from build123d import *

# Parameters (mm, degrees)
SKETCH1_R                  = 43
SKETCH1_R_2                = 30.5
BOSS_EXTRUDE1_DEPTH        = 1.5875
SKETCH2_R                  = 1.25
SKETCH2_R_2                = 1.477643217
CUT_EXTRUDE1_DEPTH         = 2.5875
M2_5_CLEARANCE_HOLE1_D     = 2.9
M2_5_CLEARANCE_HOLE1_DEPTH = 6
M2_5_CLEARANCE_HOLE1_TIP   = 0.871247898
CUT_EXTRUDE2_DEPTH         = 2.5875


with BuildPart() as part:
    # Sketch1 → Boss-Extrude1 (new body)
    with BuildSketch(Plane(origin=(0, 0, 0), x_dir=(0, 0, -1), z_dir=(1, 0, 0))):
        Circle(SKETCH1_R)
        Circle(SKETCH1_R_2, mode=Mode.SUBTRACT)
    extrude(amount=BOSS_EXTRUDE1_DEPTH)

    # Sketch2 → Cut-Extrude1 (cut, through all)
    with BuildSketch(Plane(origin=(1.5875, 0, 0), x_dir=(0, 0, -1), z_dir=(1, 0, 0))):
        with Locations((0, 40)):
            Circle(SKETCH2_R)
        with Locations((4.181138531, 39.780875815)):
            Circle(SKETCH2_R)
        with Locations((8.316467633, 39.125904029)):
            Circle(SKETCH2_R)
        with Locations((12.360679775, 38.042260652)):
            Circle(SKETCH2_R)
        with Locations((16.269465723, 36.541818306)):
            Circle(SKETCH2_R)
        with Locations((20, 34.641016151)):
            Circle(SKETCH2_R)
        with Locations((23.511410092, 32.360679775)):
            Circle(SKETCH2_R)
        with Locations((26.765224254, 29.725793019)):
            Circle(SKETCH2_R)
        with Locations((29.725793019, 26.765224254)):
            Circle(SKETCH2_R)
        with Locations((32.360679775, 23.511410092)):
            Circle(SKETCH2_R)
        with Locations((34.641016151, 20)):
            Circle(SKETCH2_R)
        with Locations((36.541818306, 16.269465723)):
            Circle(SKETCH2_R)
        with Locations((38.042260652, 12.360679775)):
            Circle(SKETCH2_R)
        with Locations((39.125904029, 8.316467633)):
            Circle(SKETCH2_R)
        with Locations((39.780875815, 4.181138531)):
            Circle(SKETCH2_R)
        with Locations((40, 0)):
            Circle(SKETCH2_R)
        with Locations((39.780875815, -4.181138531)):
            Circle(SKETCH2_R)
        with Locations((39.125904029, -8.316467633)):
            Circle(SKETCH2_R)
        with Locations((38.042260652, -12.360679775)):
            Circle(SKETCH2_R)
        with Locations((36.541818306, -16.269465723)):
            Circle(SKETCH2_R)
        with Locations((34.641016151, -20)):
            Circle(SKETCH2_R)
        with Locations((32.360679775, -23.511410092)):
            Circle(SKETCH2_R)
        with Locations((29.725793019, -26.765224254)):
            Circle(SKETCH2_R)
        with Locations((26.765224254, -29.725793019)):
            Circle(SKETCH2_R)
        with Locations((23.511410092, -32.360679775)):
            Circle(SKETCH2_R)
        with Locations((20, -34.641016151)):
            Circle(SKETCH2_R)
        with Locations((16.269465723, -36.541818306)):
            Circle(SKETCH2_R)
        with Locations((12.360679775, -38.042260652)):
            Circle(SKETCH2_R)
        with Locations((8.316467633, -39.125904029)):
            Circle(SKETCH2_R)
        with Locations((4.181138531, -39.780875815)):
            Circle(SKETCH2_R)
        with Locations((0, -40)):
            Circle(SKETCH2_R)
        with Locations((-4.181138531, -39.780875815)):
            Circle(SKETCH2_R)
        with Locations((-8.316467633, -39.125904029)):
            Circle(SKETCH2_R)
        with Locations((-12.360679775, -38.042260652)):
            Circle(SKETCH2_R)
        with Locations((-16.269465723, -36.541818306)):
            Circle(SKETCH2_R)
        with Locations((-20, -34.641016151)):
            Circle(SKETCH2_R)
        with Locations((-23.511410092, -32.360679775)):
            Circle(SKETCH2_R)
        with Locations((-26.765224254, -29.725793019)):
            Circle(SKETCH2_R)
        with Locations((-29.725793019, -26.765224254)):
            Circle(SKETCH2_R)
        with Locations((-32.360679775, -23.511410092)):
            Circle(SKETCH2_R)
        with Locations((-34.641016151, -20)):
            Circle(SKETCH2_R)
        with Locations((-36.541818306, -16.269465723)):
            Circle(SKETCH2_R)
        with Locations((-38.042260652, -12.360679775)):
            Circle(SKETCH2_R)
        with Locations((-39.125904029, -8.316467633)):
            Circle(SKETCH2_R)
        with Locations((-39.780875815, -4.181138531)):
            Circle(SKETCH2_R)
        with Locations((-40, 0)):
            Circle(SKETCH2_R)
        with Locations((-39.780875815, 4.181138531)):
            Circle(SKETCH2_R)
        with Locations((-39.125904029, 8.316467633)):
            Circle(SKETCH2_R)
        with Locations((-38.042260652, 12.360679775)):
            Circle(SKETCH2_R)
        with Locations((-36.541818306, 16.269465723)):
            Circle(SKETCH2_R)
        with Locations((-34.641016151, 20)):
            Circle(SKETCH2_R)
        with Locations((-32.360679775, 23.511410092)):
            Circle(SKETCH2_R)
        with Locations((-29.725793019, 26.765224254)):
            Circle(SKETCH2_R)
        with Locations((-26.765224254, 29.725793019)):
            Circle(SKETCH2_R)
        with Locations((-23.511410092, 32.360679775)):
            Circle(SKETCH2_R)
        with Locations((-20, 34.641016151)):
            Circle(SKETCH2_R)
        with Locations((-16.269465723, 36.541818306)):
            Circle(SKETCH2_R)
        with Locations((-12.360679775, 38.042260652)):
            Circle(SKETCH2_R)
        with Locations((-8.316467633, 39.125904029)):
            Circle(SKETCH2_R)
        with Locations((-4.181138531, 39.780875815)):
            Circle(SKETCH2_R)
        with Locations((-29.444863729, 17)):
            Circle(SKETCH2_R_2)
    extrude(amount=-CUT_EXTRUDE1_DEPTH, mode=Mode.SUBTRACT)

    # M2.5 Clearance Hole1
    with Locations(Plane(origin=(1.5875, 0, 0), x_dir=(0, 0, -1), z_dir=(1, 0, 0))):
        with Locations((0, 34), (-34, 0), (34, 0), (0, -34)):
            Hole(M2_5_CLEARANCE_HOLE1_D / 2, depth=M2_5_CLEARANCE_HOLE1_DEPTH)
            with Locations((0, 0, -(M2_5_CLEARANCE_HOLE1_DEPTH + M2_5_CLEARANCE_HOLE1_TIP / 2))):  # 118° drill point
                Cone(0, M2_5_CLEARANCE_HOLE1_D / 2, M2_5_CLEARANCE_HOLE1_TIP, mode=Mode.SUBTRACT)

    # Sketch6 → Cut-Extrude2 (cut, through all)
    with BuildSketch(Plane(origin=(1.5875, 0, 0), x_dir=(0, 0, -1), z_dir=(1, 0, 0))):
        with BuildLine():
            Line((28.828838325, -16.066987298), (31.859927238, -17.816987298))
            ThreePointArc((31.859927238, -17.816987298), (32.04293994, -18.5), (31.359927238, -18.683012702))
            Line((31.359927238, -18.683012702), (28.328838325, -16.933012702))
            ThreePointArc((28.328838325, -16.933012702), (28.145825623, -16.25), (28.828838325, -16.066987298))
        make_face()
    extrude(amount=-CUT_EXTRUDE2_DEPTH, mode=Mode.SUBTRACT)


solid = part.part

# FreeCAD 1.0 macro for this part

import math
import FreeCAD as App
import Part
import Sketcher
Q = App.Units.Quantity

doc = App.newDocument("Part")
body = doc.addObject("PartDesign::Body", "Body")

sketch1 = body.newObject("Sketcher::SketchObject", "Sketch")
sketch1.AttachmentSupport = (doc.getObject("YZ_Plane"), [""])
sketch1.MapMode = "FlatFace"
sketch1.addGeometry([
    Part.Circle(App.Vector(0, 0, 0), App.Vector(0, 0, 1), 43),
    Part.Circle(App.Vector(0, 0, 0), App.Vector(0, 0, 1), 30),
], False)
sketch1.addConstraint([
    Sketcher.Constraint("Coincident", 0, 3, -1, 1),
    Sketcher.Constraint("Coincident", 1, 3, -1, 1),
    Sketcher.Constraint("Diameter", 0, 86.0),
    Sketcher.Constraint("Diameter", 1, 61.0),
])
pad1 = body.newObject("PartDesign::Pad", "Pad")
pad1.Profile = sketch1
pad1.Length = 1.5875

sketch2 = body.newObject("Sketcher::SketchObject", "Sketch001")
sketch2.AttachmentSupport = (doc.getObject("YZ_Plane"), [""])
sketch2.MapMode = "FlatFace"
sketch2.AttachmentOffset = App.Placement(App.Vector(0, 0, 1.5875), App.Rotation())
sketch2.addGeometry([
    Part.Circle(App.Vector(40, 0, 0), App.Vector(0, 0, 1), 1.2),
    Part.Circle(App.Vector(39.8, -4.2, 0), App.Vector(0, 0, 1), 1.2),
    Part.Circle(App.Vector(39.1, -8.3, 0), App.Vector(0, 0, 1), 1.2),
    Part.Circle(App.Vector(38, -12.4, 0), App.Vector(0, 0, 1), 1.2),
    Part.Circle(App.Vector(36.5, -16.3, 0), App.Vector(0, 0, 1), 1.2),
    Part.Circle(App.Vector(34.6, -20, 0), App.Vector(0, 0, 1), 1.2),
    Part.Circle(App.Vector(32.4, -23.5, 0), App.Vector(0, 0, 1), 1.2),
    Part.Circle(App.Vector(29.7, -26.8, 0), App.Vector(0, 0, 1), 1.2),
    Part.Circle(App.Vector(26.8, -29.7, 0), App.Vector(0, 0, 1), 1.2),
    Part.Circle(App.Vector(23.5, -32.4, 0), App.Vector(0, 0, 1), 1.2),
    Part.Circle(App.Vector(20, -34.6, 0), App.Vector(0, 0, 1), 1.2),
    Part.Circle(App.Vector(16.3, -36.5, 0), App.Vector(0, 0, 1), 1.2),
    Part.Circle(App.Vector(12.4, -38, 0), App.Vector(0, 0, 1), 1.2),
    Part.Circle(App.Vector(8.3, -39.1, 0), App.Vector(0, 0, 1), 1.2),
    Part.Circle(App.Vector(4.2, -39.8, 0), App.Vector(0, 0, 1), 1.2),
    Part.Circle(App.Vector(0, -40, 0), App.Vector(0, 0, 1), 1.2),
    Part.Circle(App.Vector(-4.2, -39.8, 0), App.Vector(0, 0, 1), 1.2),
    Part.Circle(App.Vector(-8.3, -39.1, 0), App.Vector(0, 0, 1), 1.2),
    Part.Circle(App.Vector(-12.4, -38, 0), App.Vector(0, 0, 1), 1.2),
    Part.Circle(App.Vector(-16.3, -36.5, 0), App.Vector(0, 0, 1), 1.2),
    Part.Circle(App.Vector(-20, -34.6, 0), App.Vector(0, 0, 1), 1.2),
    Part.Circle(App.Vector(-23.5, -32.4, 0), App.Vector(0, 0, 1), 1.2),
    Part.Circle(App.Vector(-26.8, -29.7, 0), App.Vector(0, 0, 1), 1.2),
    Part.Circle(App.Vector(-29.7, -26.8, 0), App.Vector(0, 0, 1), 1.2),
    Part.Circle(App.Vector(-32.4, -23.5, 0), App.Vector(0, 0, 1), 1.2),
    Part.Circle(App.Vector(-34.6, -20, 0), App.Vector(0, 0, 1), 1.2),
    Part.Circle(App.Vector(-36.5, -16.3, 0), App.Vector(0, 0, 1), 1.2),
    Part.Circle(App.Vector(-38, -12.4, 0), App.Vector(0, 0, 1), 1.2),
    Part.Circle(App.Vector(-39.1, -8.3, 0), App.Vector(0, 0, 1), 1.2),
    Part.Circle(App.Vector(-39.8, -4.2, 0), App.Vector(0, 0, 1), 1.2),
    Part.Circle(App.Vector(-40, 0, 0), App.Vector(0, 0, 1), 1.2),
    Part.Circle(App.Vector(-39.8, 4.2, 0), App.Vector(0, 0, 1), 1.2),
    Part.Circle(App.Vector(-39.1, 8.3, 0), App.Vector(0, 0, 1), 1.2),
    Part.Circle(App.Vector(-38, 12.4, 0), App.Vector(0, 0, 1), 1.2),
    Part.Circle(App.Vector(-36.5, 16.3, 0), App.Vector(0, 0, 1), 1.2),
    Part.Circle(App.Vector(-34.6, 20, 0), App.Vector(0, 0, 1), 1.2),
    Part.Circle(App.Vector(-32.4, 23.5, 0), App.Vector(0, 0, 1), 1.2),
    Part.Circle(App.Vector(-29.7, 26.8, 0), App.Vector(0, 0, 1), 1.2),
    Part.Circle(App.Vector(-26.8, 29.7, 0), App.Vector(0, 0, 1), 1.2),
    Part.Circle(App.Vector(-23.5, 32.4, 0), App.Vector(0, 0, 1), 1.2),
    Part.Circle(App.Vector(-20, 34.6, 0), App.Vector(0, 0, 1), 1.2),
    Part.Circle(App.Vector(-16.3, 36.5, 0), App.Vector(0, 0, 1), 1.2),
    Part.Circle(App.Vector(-12.4, 38, 0), App.Vector(0, 0, 1), 1.2),
    Part.Circle(App.Vector(-8.3, 39.1, 0), App.Vector(0, 0, 1), 1.2),
    Part.Circle(App.Vector(-4.2, 39.8, 0), App.Vector(0, 0, 1), 1.2),
    Part.Circle(App.Vector(0, 40, 0), App.Vector(0, 0, 1), 1.2),
    Part.Circle(App.Vector(4.2, 39.8, 0), App.Vector(0, 0, 1), 1.2),
    Part.Circle(App.Vector(8.3, 39.1, 0), App.Vector(0, 0, 1), 1.2),
    Part.Circle(App.Vector(12.4, 38, 0), App.Vector(0, 0, 1), 1.2),
    Part.Circle(App.Vector(16.3, 36.5, 0), App.Vector(0, 0, 1), 1.2),
    Part.Circle(App.Vector(20, 34.6, 0), App.Vector(0, 0, 1), 1.2),
    Part.Circle(App.Vector(23.5, 32.4, 0), App.Vector(0, 0, 1), 1.2),
    Part.Circle(App.Vector(26.8, 29.7, 0), App.Vector(0, 0, 1), 1.2),
    Part.Circle(App.Vector(29.7, 26.8, 0), App.Vector(0, 0, 1), 1.2),
    Part.Circle(App.Vector(32.4, 23.5, 0), App.Vector(0, 0, 1), 1.2),
    Part.Circle(App.Vector(34.6, 20, 0), App.Vector(0, 0, 1), 1.2),
    Part.Circle(App.Vector(36.5, 16.3, 0), App.Vector(0, 0, 1), 1.2),
    Part.Circle(App.Vector(38, 12.4, 0), App.Vector(0, 0, 1), 1.2),
    Part.Circle(App.Vector(39.1, 8.3, 0), App.Vector(0, 0, 1), 1.2),
    Part.Circle(App.Vector(39.8, 4.2, 0), App.Vector(0, 0, 1), 1.2),
    Part.Circle(App.Vector(17, 29.4, 0), App.Vector(0, 0, 1), 1.5),
], False)
sketch2.addConstraint([
    Sketcher.Constraint("Equal", 0, 1),
    Sketcher.Constraint("Equal", 1, 2),
    Sketcher.Constraint("Equal", 2, 3),
    Sketcher.Constraint("Equal", 3, 4),
    Sketcher.Constraint("Equal", 4, 5),
    Sketcher.Constraint("Equal", 5, 6),
    Sketcher.Constraint("Equal", 6, 7),
    Sketcher.Constraint("Equal", 7, 8),
    Sketcher.Constraint("Equal", 8, 9),
    Sketcher.Constraint("Equal", 9, 10),
    Sketcher.Constraint("Equal", 10, 11),
    Sketcher.Constraint("Equal", 11, 12),
    Sketcher.Constraint("Equal", 12, 13),
    Sketcher.Constraint("Equal", 13, 14),
    Sketcher.Constraint("Equal", 14, 15),
    Sketcher.Constraint("Equal", 15, 16),
    Sketcher.Constraint("Equal", 16, 17),
    Sketcher.Constraint("Equal", 17, 18),
    Sketcher.Constraint("Equal", 18, 19),
    Sketcher.Constraint("Equal", 19, 20),
    Sketcher.Constraint("Equal", 20, 21),
    Sketcher.Constraint("Equal", 21, 22),
    Sketcher.Constraint("Equal", 22, 23),
    Sketcher.Constraint("Equal", 23, 24),
    Sketcher.Constraint("Equal", 24, 25),
    Sketcher.Constraint("Equal", 25, 26),
    Sketcher.Constraint("Equal", 26, 27),
    Sketcher.Constraint("Equal", 27, 28),
    Sketcher.Constraint("Equal", 28, 29),
    Sketcher.Constraint("Equal", 29, 30),
    Sketcher.Constraint("Equal", 30, 31),
    Sketcher.Constraint("Equal", 31, 32),
    Sketcher.Constraint("Equal", 32, 33),
    Sketcher.Constraint("Equal", 33, 34),
    Sketcher.Constraint("Equal", 34, 35),
    Sketcher.Constraint("Equal", 35, 36),
    Sketcher.Constraint("Equal", 36, 37),
    Sketcher.Constraint("Equal", 37, 38),
    Sketcher.Constraint("Equal", 38, 39),
    Sketcher.Constraint("Equal", 39, 40),
    Sketcher.Constraint("Equal", 40, 41),
    Sketcher.Constraint("Equal", 41, 42),
    Sketcher.Constraint("Equal", 42, 43),
    Sketcher.Constraint("Equal", 43, 44),
    Sketcher.Constraint("Equal", 44, 45),
    Sketcher.Constraint("Equal", 45, 46),
    Sketcher.Constraint("Equal", 46, 47),
    Sketcher.Constraint("Equal", 47, 48),
    Sketcher.Constraint("Equal", 48, 49),
    Sketcher.Constraint("Equal", 49, 50),
    Sketcher.Constraint("Equal", 50, 51),
    Sketcher.Constraint("Equal", 51, 52),
    Sketcher.Constraint("Equal", 52, 53),
    Sketcher.Constraint("Equal", 53, 54),
    Sketcher.Constraint("Equal", 54, 55),
    Sketcher.Constraint("Equal", 55, 56),
    Sketcher.Constraint("Equal", 56, 57),
    Sketcher.Constraint("Equal", 57, 58),
    Sketcher.Constraint("Equal", 58, 59),
    Sketcher.Constraint("Symmetric", 0, 3, 30, 3, -1, 1),
    Sketcher.Constraint("Symmetric", 1, 3, 31, 3, -1, 1),
    Sketcher.Constraint("Symmetric", 2, 3, 32, 3, -1, 1),
    Sketcher.Constraint("Symmetric", 3, 3, 33, 3, -1, 1),
    Sketcher.Constraint("Symmetric", 4, 3, 34, 3, -1, 1),
    Sketcher.Constraint("Symmetric", 5, 3, 35, 3, -1, 1),
    Sketcher.Constraint("Symmetric", 6, 3, 36, 3, -1, 1),
    Sketcher.Constraint("Symmetric", 7, 3, 37, 3, -1, 1),
    Sketcher.Constraint("Symmetric", 8, 3, 38, 3, -1, 1),
    Sketcher.Constraint("Symmetric", 9, 3, 39, 3, -1, 1),
    Sketcher.Constraint("Symmetric", 10, 3, 40, 3, -1, 1),
    Sketcher.Constraint("Symmetric", 11, 3, 41, 3, -1, 1),
    Sketcher.Constraint("Symmetric", 12, 3, 42, 3, -1, 1),
    Sketcher.Constraint("Symmetric", 13, 3, 43, 3, -1, 1),
    Sketcher.Constraint("Symmetric", 14, 3, 44, 3, -1, 1),
    Sketcher.Constraint("Symmetric", 15, 3, 45, 3, -1, 1),
    Sketcher.Constraint("Symmetric", 16, 3, 46, 3, -1, 1),
    Sketcher.Constraint("Symmetric", 17, 3, 47, 3, -1, 1),
    Sketcher.Constraint("Symmetric", 18, 3, 48, 3, -1, 1),
    Sketcher.Constraint("Symmetric", 19, 3, 49, 3, -1, 1),
    Sketcher.Constraint("Symmetric", 20, 3, 50, 3, -1, 1),
    Sketcher.Constraint("Symmetric", 21, 3, 51, 3, -1, 1),
    Sketcher.Constraint("Symmetric", 22, 3, 52, 3, -1, 1),
    Sketcher.Constraint("Symmetric", 23, 3, 53, 3, -1, 1),
    Sketcher.Constraint("Symmetric", 24, 3, 54, 3, -1, 1),
    Sketcher.Constraint("Symmetric", 25, 3, 55, 3, -1, 1),
    Sketcher.Constraint("Symmetric", 26, 3, 56, 3, -1, 1),
    Sketcher.Constraint("Symmetric", 27, 3, 57, 3, -1, 1),
    Sketcher.Constraint("Symmetric", 28, 3, 58, 3, -1, 1),
    Sketcher.Constraint("Symmetric", 29, 3, 59, 3, -1, 1),
    Sketcher.Constraint("Symmetric", 14, 3, 16, 3, -2),
    Sketcher.Constraint("Symmetric", 13, 3, 17, 3, -2),
    Sketcher.Constraint("Symmetric", 12, 3, 18, 3, -2),
    Sketcher.Constraint("Symmetric", 11, 3, 19, 3, -2),
    Sketcher.Constraint("Symmetric", 10, 3, 20, 3, -2),
    Sketcher.Constraint("Symmetric", 9, 3, 21, 3, -2),
    Sketcher.Constraint("Symmetric", 8, 3, 22, 3, -2),
    Sketcher.Constraint("Symmetric", 7, 3, 23, 3, -2),
    Sketcher.Constraint("Symmetric", 6, 3, 24, 3, -2),
    Sketcher.Constraint("Symmetric", 5, 3, 25, 3, -2),
    Sketcher.Constraint("Symmetric", 4, 3, 26, 3, -2),
    Sketcher.Constraint("Symmetric", 3, 3, 27, 3, -2),
    Sketcher.Constraint("Symmetric", 2, 3, 28, 3, -2),
    Sketcher.Constraint("Symmetric", 1, 3, 29, 3, -2),
    Sketcher.Constraint("PointOnObject", 0, 3, -1),
    Sketcher.Constraint("PointOnObject", 15, 3, -2),
    Sketcher.Constraint("Diameter", 0, 2.5),
    Sketcher.Constraint("DistanceX", -1, 1, 0, 3, 40.0),
    Sketcher.Constraint("DistanceY", 5, 3, -1, 1, 20.0),
    Sketcher.Constraint("DistanceX", -1, 1, 10, 3, 20.0),
    Sketcher.Constraint("DistanceY", 15, 3, -1, 1, 40.0),
    Sketcher.Constraint("DistanceX", -1, 1, 60, 3, 17.0),
    Sketcher.Constraint("Diameter", 60, 2.955286),
    Sketcher.Constraint("DistanceY", 1, 3, -1, 1, 4.181139),
    Sketcher.Constraint("DistanceX", -1, 1, 3, 3, 38.042261),
    Sketcher.Constraint("DistanceY", 3, 3, -1, 1, 12.36068),
    Sketcher.Constraint("DistanceX", -1, 1, 4, 3, 36.541818),
    Sketcher.Constraint("DistanceX", -1, 1, 6, 3, 32.36068),
    Sketcher.Constraint("DistanceY", 6, 3, -1, 1, 23.51141),
    Sketcher.Constraint("DistanceX", -1, 1, 9, 3, 23.51141),
    Sketcher.Constraint("DistanceY", 9, 3, -1, 1, 32.36068),
    Sketcher.Constraint("DistanceY", 11, 3, -1, 1, 36.541818),
    Sketcher.Constraint("DistanceX", -1, 1, 12, 3, 12.36068),
    Sketcher.Constraint("DistanceY", 12, 3, -1, 1, 38.042261),
    Sketcher.Constraint("DistanceX", -1, 1, 14, 3, 4.181139),
    Sketcher.Constraint("DistanceX", -1, 1, 1, 3, 39.780876),
    Sketcher.Constraint("DistanceX", -1, 1, 2, 3, 39.125904),
    Sketcher.Constraint("DistanceY", 2, 3, -1, 1, 8.316468),
    Sketcher.Constraint("DistanceY", 4, 3, -1, 1, 16.269466),
    Sketcher.Constraint("DistanceX", -1, 1, 5, 3, 34.641016),
    Sketcher.Constraint("DistanceX", -1, 1, 7, 3, 29.725793),
    Sketcher.Constraint("DistanceY", 7, 3, -1, 1, 26.765224),
    Sketcher.Constraint("DistanceX", -1, 1, 8, 3, 26.765224),
    Sketcher.Constraint("DistanceY", 8, 3, -1, 1, 29.725793),
    Sketcher.Constraint("DistanceY", 10, 3, -1, 1, 34.641016),
    Sketcher.Constraint("DistanceX", -1, 1, 11, 3, 16.269466),
    Sketcher.Constraint("DistanceX", -1, 1, 13, 3, 8.316468),
    Sketcher.Constraint("DistanceY", 13, 3, -1, 1, 39.125904),
    Sketcher.Constraint("DistanceY", 14, 3, -1, 1, 39.780876),
    Sketcher.Constraint("DistanceY", -1, 1, 60, 3, 29.444864),
])
pocket1 = body.newObject("PartDesign::Pocket", "Pocket")
pocket1.Profile = sketch2
pocket1.Type = "ThroughAll"

sketch3 = body.newObject("Sketcher::SketchObject", "Sketch002")
sketch3.AttachmentSupport = (doc.getObject("YZ_Plane"), [""])
sketch3.MapMode = "FlatFace"
sketch3.AttachmentOffset = App.Placement(App.Vector(0, 0, 1.5875), App.Rotation())
sketch3.addGeometry([
    Part.Circle(App.Vector(34, 0, 0), App.Vector(0, 0, 1), 1.4),
    Part.Circle(App.Vector(0, 34, 0), App.Vector(0, 0, 1), 1.4),
    Part.Circle(App.Vector(0, -34, 0), App.Vector(0, 0, 1), 1.4),
    Part.Circle(App.Vector(-34, 0, 0), App.Vector(0, 0, 1), 1.4),
], False)
sketch3.addConstraint([
    Sketcher.Constraint("Equal", 0, 1),
    Sketcher.Constraint("Equal", 1, 2),
    Sketcher.Constraint("Equal", 2, 3),
    Sketcher.Constraint("Symmetric", 1, 3, 2, 3, -1, 1),
    Sketcher.Constraint("Symmetric", 0, 3, 3, 3, -1, 1),
    Sketcher.Constraint("PointOnObject", 0, 3, -1),
    Sketcher.Constraint("PointOnObject", 1, 3, -2),
    Sketcher.Constraint("Diameter", 0, 2.9),
    Sketcher.Constraint("DistanceX", -1, 1, 0, 3, 34.0),
    Sketcher.Constraint("DistanceY", -1, 1, 1, 3, 34.0),
])
doc.recompute()
hole = body.newObject("PartDesign::Hole", "Hole")
hole.Profile = sketch3
hole.ThreadType = "None"
hole.Diameter = 2.9
hole.DepthType = "Dimension"
hole.Depth = 6
hole.DrillPoint = "Angled"
hole.DrillPointAngle = 118

sketch4 = body.newObject("Sketcher::SketchObject", "Sketch003")
sketch4.AttachmentSupport = (doc.getObject("YZ_Plane"), [""])
sketch4.MapMode = "FlatFace"
sketch4.AttachmentOffset = App.Placement(App.Vector(0, 0, 1.5875), App.Rotation())
sketch4.addGeometry([
    Part.LineSegment(App.Vector(-17.8, -31.9, 0), App.Vector(-16.1, -28.8, 0)),
    Part.ArcOfCircle(Part.Circle(App.Vector(-16.5, -28.6, 0), App.Vector(0, 0, 1), 0.5), math.radians(-30), math.radians(150)),
    Part.LineSegment(App.Vector(-16.9, -28.3, 0), App.Vector(-18.7, -31.4, 0)),
    Part.ArcOfCircle(Part.Circle(App.Vector(-18.2, -31.6, 0), App.Vector(0, 0, 1), 0.5), math.radians(150), math.radians(330)),
], False)
sketch4.addConstraint([
    Sketcher.Constraint("Tangent", 0, 2, 1, 1),
    Sketcher.Constraint("Tangent", 1, 2, 2, 1),
    Sketcher.Constraint("Tangent", 2, 2, 3, 1),
    Sketcher.Constraint("Tangent", 3, 2, 0, 1),
    Sketcher.Constraint("Equal", 1, 3),
    Sketcher.Constraint("Radius", 1, 0.5),
    Sketcher.Constraint("Angle", 0, Q("60 deg")),
    Sketcher.Constraint("Distance", 0, 3.5),
    Sketcher.Constraint("DistanceX", 1, 3, -1, 1, 16.5),
    Sketcher.Constraint("DistanceY", 1, 3, -1, 1, 28.578838),
])
pocket2 = body.newObject("PartDesign::Pocket", "Pocket001")
pocket2.Profile = sketch4
pocket2.Type = "ThroughAll"

doc.recompute()
